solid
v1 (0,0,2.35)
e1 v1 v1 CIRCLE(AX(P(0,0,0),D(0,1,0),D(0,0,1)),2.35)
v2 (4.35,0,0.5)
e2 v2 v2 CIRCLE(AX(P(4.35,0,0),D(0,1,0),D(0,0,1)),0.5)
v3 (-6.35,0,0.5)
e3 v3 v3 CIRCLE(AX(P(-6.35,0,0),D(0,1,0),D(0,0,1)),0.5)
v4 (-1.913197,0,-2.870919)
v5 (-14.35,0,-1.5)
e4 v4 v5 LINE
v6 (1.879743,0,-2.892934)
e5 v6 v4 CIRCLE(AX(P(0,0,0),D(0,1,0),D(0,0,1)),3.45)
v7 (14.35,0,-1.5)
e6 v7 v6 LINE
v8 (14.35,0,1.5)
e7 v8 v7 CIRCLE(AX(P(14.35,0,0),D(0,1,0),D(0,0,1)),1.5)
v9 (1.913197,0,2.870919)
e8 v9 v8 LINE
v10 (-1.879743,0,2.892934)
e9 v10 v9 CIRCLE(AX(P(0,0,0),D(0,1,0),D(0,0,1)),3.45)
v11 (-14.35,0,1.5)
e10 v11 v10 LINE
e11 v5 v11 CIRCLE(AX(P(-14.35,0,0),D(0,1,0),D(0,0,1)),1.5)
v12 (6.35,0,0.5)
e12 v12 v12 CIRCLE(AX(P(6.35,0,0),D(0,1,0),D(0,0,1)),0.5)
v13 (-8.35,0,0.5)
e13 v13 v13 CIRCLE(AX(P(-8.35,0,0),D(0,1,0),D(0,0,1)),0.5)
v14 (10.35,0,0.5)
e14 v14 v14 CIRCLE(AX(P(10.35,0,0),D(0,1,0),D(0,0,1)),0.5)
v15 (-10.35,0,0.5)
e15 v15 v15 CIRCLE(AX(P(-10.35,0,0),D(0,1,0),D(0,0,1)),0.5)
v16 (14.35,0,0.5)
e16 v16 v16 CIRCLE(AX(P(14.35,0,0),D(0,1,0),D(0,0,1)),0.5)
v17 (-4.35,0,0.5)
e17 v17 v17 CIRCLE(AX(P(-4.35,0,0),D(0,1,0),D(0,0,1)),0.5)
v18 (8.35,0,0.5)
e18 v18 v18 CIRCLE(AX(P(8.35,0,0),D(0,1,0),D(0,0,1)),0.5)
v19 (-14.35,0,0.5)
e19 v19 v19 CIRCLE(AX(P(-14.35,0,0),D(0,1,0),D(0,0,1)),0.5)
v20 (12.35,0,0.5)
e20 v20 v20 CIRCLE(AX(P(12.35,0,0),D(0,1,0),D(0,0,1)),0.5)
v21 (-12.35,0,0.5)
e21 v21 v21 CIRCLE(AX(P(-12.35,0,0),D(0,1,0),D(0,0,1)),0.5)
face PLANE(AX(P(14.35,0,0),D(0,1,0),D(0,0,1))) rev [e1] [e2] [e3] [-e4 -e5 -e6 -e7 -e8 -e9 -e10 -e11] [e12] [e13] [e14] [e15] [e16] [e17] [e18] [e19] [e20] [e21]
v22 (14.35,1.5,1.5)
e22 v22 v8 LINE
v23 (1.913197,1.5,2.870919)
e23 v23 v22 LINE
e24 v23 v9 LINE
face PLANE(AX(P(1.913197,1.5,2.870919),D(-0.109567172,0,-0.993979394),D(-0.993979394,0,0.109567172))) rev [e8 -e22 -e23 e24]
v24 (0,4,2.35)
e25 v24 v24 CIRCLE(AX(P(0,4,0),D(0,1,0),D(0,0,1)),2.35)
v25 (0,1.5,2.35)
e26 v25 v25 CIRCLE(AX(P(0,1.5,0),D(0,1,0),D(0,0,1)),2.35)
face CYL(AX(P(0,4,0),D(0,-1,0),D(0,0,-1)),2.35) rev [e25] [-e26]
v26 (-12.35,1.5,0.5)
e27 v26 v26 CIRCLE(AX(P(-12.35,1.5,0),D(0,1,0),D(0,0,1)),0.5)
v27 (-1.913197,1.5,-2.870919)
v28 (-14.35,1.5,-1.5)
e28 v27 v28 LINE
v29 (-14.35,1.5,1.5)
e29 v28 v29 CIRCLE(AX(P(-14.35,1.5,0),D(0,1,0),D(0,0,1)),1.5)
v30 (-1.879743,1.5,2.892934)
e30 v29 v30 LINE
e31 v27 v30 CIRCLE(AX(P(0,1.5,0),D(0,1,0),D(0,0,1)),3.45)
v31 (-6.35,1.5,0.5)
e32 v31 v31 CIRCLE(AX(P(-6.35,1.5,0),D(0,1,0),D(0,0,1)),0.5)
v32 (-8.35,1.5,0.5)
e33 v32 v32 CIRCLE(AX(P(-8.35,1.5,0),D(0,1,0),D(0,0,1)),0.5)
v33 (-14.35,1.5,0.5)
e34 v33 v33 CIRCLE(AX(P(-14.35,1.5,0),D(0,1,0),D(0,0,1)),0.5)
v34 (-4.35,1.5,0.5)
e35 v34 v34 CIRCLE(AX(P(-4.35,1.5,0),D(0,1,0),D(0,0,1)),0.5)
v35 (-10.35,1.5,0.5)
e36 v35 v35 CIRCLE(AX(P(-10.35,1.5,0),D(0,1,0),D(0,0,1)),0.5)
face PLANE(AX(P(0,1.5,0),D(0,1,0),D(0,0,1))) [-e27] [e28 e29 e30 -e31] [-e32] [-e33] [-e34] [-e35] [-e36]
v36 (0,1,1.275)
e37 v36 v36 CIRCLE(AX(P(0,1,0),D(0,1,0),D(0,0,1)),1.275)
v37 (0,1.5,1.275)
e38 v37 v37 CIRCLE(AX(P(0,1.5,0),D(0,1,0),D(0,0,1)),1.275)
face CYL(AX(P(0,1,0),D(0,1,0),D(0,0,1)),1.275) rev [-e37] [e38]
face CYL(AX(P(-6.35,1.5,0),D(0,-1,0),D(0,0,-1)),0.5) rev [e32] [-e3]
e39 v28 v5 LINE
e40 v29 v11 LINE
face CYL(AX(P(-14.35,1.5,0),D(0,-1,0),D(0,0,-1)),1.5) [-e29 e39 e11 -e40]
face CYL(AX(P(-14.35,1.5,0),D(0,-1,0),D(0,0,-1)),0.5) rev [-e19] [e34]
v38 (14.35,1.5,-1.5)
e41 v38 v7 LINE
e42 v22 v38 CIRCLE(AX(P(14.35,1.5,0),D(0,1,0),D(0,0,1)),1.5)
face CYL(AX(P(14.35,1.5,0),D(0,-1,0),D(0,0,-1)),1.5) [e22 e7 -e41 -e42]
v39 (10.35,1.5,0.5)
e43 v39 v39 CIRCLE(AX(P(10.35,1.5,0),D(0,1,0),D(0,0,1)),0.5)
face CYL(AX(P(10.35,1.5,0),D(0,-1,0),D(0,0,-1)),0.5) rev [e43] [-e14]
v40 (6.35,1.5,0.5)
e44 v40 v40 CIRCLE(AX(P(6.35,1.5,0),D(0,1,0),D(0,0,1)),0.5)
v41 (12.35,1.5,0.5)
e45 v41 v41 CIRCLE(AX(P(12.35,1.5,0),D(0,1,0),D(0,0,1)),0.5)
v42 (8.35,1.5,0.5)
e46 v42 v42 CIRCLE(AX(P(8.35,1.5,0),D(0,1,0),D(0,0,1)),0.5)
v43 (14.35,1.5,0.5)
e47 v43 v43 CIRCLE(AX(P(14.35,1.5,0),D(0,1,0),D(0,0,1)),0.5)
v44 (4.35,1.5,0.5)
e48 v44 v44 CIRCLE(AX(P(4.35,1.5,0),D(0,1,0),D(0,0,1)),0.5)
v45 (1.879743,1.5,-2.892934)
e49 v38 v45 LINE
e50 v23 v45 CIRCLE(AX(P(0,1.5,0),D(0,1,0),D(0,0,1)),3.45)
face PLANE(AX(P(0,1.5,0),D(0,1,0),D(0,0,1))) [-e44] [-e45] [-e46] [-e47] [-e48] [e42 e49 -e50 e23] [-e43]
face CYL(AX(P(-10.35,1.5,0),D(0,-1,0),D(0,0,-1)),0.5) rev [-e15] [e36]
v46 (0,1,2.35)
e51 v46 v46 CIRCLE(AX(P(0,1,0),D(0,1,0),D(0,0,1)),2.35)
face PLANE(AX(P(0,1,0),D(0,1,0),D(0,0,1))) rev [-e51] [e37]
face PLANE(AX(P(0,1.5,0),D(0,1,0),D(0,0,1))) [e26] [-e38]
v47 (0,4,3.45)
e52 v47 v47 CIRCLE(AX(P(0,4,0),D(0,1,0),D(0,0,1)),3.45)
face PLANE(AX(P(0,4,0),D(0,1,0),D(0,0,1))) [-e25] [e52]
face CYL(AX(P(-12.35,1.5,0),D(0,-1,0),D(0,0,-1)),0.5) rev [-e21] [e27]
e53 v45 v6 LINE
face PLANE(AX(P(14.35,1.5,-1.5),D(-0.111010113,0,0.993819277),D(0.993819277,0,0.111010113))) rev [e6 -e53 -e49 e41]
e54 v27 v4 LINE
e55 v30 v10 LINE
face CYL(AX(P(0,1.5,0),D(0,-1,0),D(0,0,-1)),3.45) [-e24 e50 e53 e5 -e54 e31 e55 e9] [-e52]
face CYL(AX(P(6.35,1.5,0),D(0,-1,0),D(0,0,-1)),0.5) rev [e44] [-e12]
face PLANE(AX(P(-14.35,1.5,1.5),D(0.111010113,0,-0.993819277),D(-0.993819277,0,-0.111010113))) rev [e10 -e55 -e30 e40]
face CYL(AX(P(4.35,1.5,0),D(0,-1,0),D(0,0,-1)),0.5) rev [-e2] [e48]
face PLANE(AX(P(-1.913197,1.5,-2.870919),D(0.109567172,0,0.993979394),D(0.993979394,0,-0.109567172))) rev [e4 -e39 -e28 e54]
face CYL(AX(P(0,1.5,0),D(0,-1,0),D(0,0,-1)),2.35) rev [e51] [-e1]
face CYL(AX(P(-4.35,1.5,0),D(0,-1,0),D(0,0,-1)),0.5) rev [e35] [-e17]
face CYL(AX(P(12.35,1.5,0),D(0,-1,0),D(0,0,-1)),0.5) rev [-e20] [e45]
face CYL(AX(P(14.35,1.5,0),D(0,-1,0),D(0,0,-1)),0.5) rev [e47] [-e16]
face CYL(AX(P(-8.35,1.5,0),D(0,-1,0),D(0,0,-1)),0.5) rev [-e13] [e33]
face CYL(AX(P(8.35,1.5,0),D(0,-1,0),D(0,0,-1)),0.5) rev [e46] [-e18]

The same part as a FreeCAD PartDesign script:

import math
import FreeCAD as App
import Part
import Sketcher
from FreeCAD import Vector

doc = App.newDocument("Part")
params = doc.addObject("Spreadsheet::Sheet", "Params")
for row, (alias, value) in enumerate([
    ("sketch1_diameter", "4.7 mm"),
    ("sketch1_diameter2", "2.55 mm"),
    ("pad1_length", "0.5 mm"),
    ("sketch2_diameter", "6.9 mm"),
    ("sketch2_diameter2", "4.7 mm"),
    ("pad2_length", "2.5 mm"),
    ("sketch3_diameter", "1 mm"),
    ("sketch3_diameter2", "4.7 mm"),
    ("sketch3_radius", "1.5 mm"),
    ("sketch3_radius2", "3.45 mm"),
    ("pad3_length", "1.5 mm"),
], start=1):
    params.set(f"A{row}", alias)
    params.set(f"B{row}", "=" + value)
    params.setAlias(f"B{row}", alias)

body = doc.addObject("PartDesign::Body", "Body")

# Sketch on XZ plane
sketch1 = body.newObject("Sketcher::SketchObject", "Sketch")
sketch1.AttachmentSupport = (doc.getObject("XZ_Plane"), [""])
sketch1.MapMode = "FlatFace"
sketch1.AttachmentOffset = App.Placement(Vector(0, 0, -1.5), App.Rotation())
sketch1.addGeometry([
    Part.Circle(Vector(0, 0, 0), Vector(0, 0, 1), 2.35),
    Part.Circle(Vector(0, 0, 0), Vector(0, 0, 1), 1.275),
], False)
sketch1.addConstraint([
    Sketcher.Constraint("Coincident", 0, 3, -1, 1),
    Sketcher.Constraint("Coincident", 1, 3, -1, 1),
    Sketcher.Constraint("Diameter", 0, 4.7),
    Sketcher.Constraint("Diameter", 1, 2.55),
])
sketch1.setExpression("Constraints[2]", "Params.sketch1_diameter")
sketch1.setExpression("Constraints[3]", "Params.sketch1_diameter2")
pad1 = body.newObject("PartDesign::Pad", "Pad")
pad1.Profile = sketch1
pad1.setExpression("Length", "Params.pad1_length")
body2 = doc.addObject("PartDesign::Body", "Body001")

# Sketch on XZ plane
sketch2 = body2.newObject("Sketcher::SketchObject", "Sketch001")
sketch2.AttachmentSupport = (doc.getObject("XZ_Plane001"), [""])
sketch2.MapMode = "FlatFace"
sketch2.AttachmentOffset = App.Placement(Vector(0, 0, -1.5), App.Rotation())
sketch2.addGeometry([
    Part.Circle(Vector(0, 0, 0), Vector(0, 0, 1), 3.45),
    Part.Circle(Vector(0, 0, 0), Vector(0, 0, 1), 2.35),
], False)
sketch2.addConstraint([
    Sketcher.Constraint("Coincident", 0, 3, -1, 1),
    Sketcher.Constraint("Coincident", 1, 3, -1, 1),
    Sketcher.Constraint("Diameter", 0, 6.9),
    Sketcher.Constraint("Diameter", 1, 4.7),
])
sketch2.setExpression("Constraints[2]", "Params.sketch2_diameter")
sketch2.setExpression("Constraints[3]", "Params.sketch2_diameter2")
pad2 = body2.newObject("PartDesign::Pad", "Pad001")
pad2.Profile = sketch2
pad2.setExpression("Length", "Params.pad2_length")
pad2.Reversed = True
body.AllowCompound = True
doc.recompute()

boolean = body.newObject("PartDesign::Boolean", "Boolean")
boolean.Type = "Fuse"
boolean.addObjects([body2])

# Sketch on XZ plane
sketch3 = body.newObject("Sketcher::SketchObject", "Sketch002")
sketch3.AttachmentSupport = (doc.getObject("XZ_Plane"), [""])
sketch3.MapMode = "FlatFace"
sketch3.addGeometry([
    Part.LineSegment(Vector(14.35, -1.5, 0), Vector(1.879743, -2.892934, 0)),  # 0
    Part.ArcOfCircle(Part.Circle(Vector(0, 0, 0), Vector(0, 0, 1), 3.45), math.radians(-123.67972), math.radians(-56.985383)),  # 1
    Part.LineSegment(Vector(-1.913197, -2.870919, 0), Vector(-14.35, -1.5, 0)),  # 2
    Part.ArcOfCircle(Part.Circle(Vector(-14.35, 0, 0), Vector(0, 0, 1), 1.5), math.radians(90), math.radians(270)),  # 3
    Part.LineSegment(Vector(-14.35, 1.5, 0), Vector(-1.879743, 2.892934, 0)),  # 4
    Part.ArcOfCircle(Part.Circle(Vector(0, 0, 0), Vector(0, 0, 1), 3.45), math.radians(56.32028), math.radians(123.014617)),  # 5
    Part.LineSegment(Vector(1.913197, 2.870919, 0), Vector(14.35, 1.5, 0)),  # 6
    Part.ArcOfCircle(Part.Circle(Vector(14.35, 0, 0), Vector(0, 0, 1), 1.5), math.radians(-90), math.radians(90)),  # 7
    Part.Circle(Vector(-14.35, 0, 0), Vector(0, 0, 1), 0.5),  # 8
    Part.Circle(Vector(-12.35, 0, 0), Vector(0, 0, 1), 0.5),  # 9
    Part.Circle(Vector(-10.35, 0, 0), Vector(0, 0, 1), 0.5),  # 10
    Part.Circle(Vector(-8.35, 0, 0), Vector(0, 0, 1), 0.5),  # 11
    Part.Circle(Vector(-6.35, 0, 0), Vector(0, 0, 1), 0.5),  # 12
    Part.Circle(Vector(-4.35, 0, 0), Vector(0, 0, 1), 0.5),  # 13
    Part.Circle(Vector(0, 0, 0), Vector(0, 0, 1), 2.35),  # 14
    Part.Circle(Vector(4.35, 0, 0), Vector(0, 0, 1), 0.5),  # 15
    Part.Circle(Vector(6.35, 0, 0), Vector(0, 0, 1), 0.5),  # 16
    Part.Circle(Vector(8.35, 0, 0), Vector(0, 0, 1), 0.5),  # 17
    Part.Circle(Vector(10.35, 0, 0), Vector(0, 0, 1), 0.5),  # 18
    Part.Circle(Vector(12.35, 0, 0), Vector(0, 0, 1), 0.5),  # 19
    Part.Circle(Vector(14.35, 0, 0), Vector(0, 0, 1), 0.5),  # 20
], False)
sketch3.addConstraint([
    Sketcher.Constraint("Coincident", 0, 2, 1, 2),
    Sketcher.Constraint("Coincident", 1, 1, 2, 1),
    Sketcher.Constraint("Coincident", 2, 2, 3, 2),
    Sketcher.Constraint("Coincident", 3, 1, 4, 1),
    Sketcher.Constraint("Coincident", 4, 2, 5, 2),
    Sketcher.Constraint("Coincident", 5, 1, 6, 1),
    Sketcher.Constraint("Coincident", 6, 2, 7, 2),
    Sketcher.Constraint("Coincident", 7, 1, 0, 1),
    Sketcher.Constraint("Coincident", 1, 3, -1, 1),
    Sketcher.Constraint("Coincident", 5, 3, -1, 1),
    Sketcher.Constraint("Coincident", 14, 3, -1, 1),
    Sketcher.Constraint("Coincident", 8, 3, 3, 3),
    Sketcher.Constraint("Coincident", 20, 3, 7, 3),
    Sketcher.Constraint("Equal", 1, 5),
    Sketcher.Constraint("Equal", 3, 7),
    Sketcher.Constraint("Equal", 8, 9),
    Sketcher.Constraint("Equal", 9, 10),
    Sketcher.Constraint("Equal", 10, 11),
    Sketcher.Constraint("Equal", 11, 12),
    Sketcher.Constraint("Equal", 12, 13),
    Sketcher.Constraint("Equal", 13, 15),
    Sketcher.Constraint("Equal", 15, 16),
    Sketcher.Constraint("Equal", 16, 17),
    Sketcher.Constraint("Equal", 17, 18),
    Sketcher.Constraint("Equal", 18, 19),
    Sketcher.Constraint("Equal", 19, 20),
    Sketcher.Constraint("Symmetric", 3, 3, 7, 3, -1, 1),
    Sketcher.Constraint("Symmetric", 13, 3, 15, 3, -1, 1),
    Sketcher.Constraint("Symmetric", 12, 3, 16, 3, -1, 1),
    Sketcher.Constraint("Symmetric", 11, 3, 17, 3, -1, 1),
    Sketcher.Constraint("Symmetric", 10, 3, 18, 3, -1, 1),
    Sketcher.Constraint("Symmetric", 9, 3, 19, 3, -1, 1),
    Sketcher.Constraint("Symmetric", 3, 1, 6, 2, -2),
    Sketcher.Constraint("PointOnObject", 9, 3, -1),
    Sketcher.Constraint("PointOnObject", 10, 3, -1),
    Sketcher.Constraint("PointOnObject", 11, 3, -1),
    Sketcher.Constraint("PointOnObject", 12, 3, -1),
    Sketcher.Constraint("PointOnObject", 13, 3, -1),
    Sketcher.Constraint("Parallel", 0, 4),
    Sketcher.Constraint("Parallel", 2, 6),
    Sketcher.Constraint("Vertical", 8, 3, 2, 2),
    Sketcher.Constraint("Vertical", 2, 2, 3, 1),
    Sketcher.Constraint("Vertical", 6, 2, 7, 1),
    Sketcher.Constraint("Diameter", 8, 1.0),
    Sketcher.Constraint("Diameter", 14, 4.7),
    Sketcher.Constraint("Radius", 3, 1.5),
    Sketcher.Constraint("Radius", 1, 3.45),
    Sketcher.Constraint("DistanceX", 3, 3, 9, 3, 2.0),
    Sketcher.Constraint("DistanceX", 9, 3, 10, 3, 2.0),
    Sketcher.Constraint("DistanceX", 10, 3, 11, 3, 2.0),
    Sketcher.Constraint("DistanceX", 11, 3, 12, 3, 2.0),
    Sketcher.Constraint("DistanceX", 12, 3, 13, 3, 2.0),
    Sketcher.Constraint("DistanceX", 3, 3, 7, 3, 28.7),
    Sketcher.Constraint("Distance", 0, 12.547812),
    Sketcher.Constraint("DistanceY", 1, 1, -1, 1, 2.870919),
])
sketch3.setExpression("Constraints[43]", "Params.sketch3_diameter")
sketch3.setExpression("Constraints[44]", "Params.sketch3_diameter2")
sketch3.setExpression("Constraints[45]", "Params.sketch3_radius")
sketch3.setExpression("Constraints[46]", "Params.sketch3_radius2")
pad3 = body.newObject("PartDesign::Pad", "Pad002")
pad3.Profile = sketch3
pad3.setExpression("Length", "Params.pad3_length")
pad3.Reversed = True

doc.recompute()
